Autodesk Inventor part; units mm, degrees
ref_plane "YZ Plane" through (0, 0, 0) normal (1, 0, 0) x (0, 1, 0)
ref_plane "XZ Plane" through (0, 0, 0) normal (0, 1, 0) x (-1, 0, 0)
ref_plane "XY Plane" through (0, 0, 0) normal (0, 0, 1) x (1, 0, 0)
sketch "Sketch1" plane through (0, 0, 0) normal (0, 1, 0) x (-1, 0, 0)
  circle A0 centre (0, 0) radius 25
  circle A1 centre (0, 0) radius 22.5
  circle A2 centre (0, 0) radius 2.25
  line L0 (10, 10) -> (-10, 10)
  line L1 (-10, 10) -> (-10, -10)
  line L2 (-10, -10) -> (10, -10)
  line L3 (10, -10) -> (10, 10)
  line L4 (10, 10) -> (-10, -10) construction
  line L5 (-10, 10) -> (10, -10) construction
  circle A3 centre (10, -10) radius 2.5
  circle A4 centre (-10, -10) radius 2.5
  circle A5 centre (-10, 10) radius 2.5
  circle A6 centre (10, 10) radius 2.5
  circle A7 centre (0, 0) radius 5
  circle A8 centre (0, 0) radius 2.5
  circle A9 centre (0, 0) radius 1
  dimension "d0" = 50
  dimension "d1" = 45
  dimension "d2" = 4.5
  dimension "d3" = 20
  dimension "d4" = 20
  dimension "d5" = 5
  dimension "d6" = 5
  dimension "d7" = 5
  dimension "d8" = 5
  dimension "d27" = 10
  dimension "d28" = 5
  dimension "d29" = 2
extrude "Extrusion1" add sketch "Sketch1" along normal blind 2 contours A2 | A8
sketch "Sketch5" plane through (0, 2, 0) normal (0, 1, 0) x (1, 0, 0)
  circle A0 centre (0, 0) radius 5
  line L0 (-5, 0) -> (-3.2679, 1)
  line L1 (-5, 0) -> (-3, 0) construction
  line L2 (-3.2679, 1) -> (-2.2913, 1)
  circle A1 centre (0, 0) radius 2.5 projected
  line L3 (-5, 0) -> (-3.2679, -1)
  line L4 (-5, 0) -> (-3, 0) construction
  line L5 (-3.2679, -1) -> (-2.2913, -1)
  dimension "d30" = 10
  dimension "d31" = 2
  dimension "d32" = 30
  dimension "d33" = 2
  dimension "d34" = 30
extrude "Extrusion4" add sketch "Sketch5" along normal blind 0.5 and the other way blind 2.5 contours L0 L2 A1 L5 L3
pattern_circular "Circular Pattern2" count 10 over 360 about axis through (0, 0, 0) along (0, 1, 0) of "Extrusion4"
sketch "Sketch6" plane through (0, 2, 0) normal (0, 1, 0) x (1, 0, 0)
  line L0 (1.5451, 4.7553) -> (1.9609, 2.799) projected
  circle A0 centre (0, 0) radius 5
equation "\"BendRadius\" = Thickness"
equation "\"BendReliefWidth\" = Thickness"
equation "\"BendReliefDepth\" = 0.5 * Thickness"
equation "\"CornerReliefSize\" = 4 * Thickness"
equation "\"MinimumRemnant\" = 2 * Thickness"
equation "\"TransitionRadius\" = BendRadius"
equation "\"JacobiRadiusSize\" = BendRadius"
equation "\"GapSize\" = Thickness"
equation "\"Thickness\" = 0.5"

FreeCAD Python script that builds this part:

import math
import FreeCAD as App
import Part
import Sketcher
from FreeCAD import Vector

doc = App.newDocument("Part")
body = doc.addObject("PartDesign::Body", "Body")

# Sketch on XZ plane
sketch1 = doc.addObject("Sketcher::SketchObject", "Sketch")
body.addObject(sketch1)
sketch1.AttachmentSupport = (doc.XZ_Plane, [""])
sketch1.MapMode = "FlatFace"
sketch1.addGeometry([
    Part.Circle(Vector(0, 0, 0), Vector(0, 0, 1), 2.5),
    Part.Circle(Vector(0, 0, 0), Vector(0, 0, 1), 1),
], False)
sketch1.addConstraint([
    Sketcher.Constraint("Coincident", 0, 3, -1, 1),
    Sketcher.Constraint("Coincident", 1, 3, -1, 1),
    Sketcher.Constraint("Diameter", 0, 5.0),
    Sketcher.Constraint("Diameter", 1, 2.0),
])
pad1 = doc.addObject("PartDesign::Pad", "Pad")
body.addObject(pad1)
pad1.Profile = sketch1
pad1.Length = 2
pad1.Reversed = True

# Sketch on XZ plane
sketch2 = doc.addObject("Sketcher::SketchObject", "Sketch001")
body.addObject(sketch2)
sketch2.AttachmentSupport = (doc.XZ_Plane, [""])
sketch2.MapMode = "FlatFace"
sketch2.AttachmentOffset = App.Placement(Vector(0, 0, -2), App.Rotation())
sketch2.addGeometry([
    Part.LineSegment(Vector(-3.3, -1, 0), Vector(-5, 0, 0)),  # 0
    Part.LineSegment(Vector(-5, 0, 0), Vector(-3.3, 1, 0)),  # 1
    Part.LineSegment(Vector(-3.3, 1, 0), Vector(-2.3, 1, 0)),  # 2
    Part.ArcOfCircle(Part.Circle(Vector(0, 0, 0), Vector(0, 0, 1), 2.5), math.radians(156), math.radians(204)),  # 3
    Part.LineSegment(Vector(-2.3, -1, 0), Vector(-3.3, -1, 0)),  # 4
], False)
sketch2.addConstraint([
    Sketcher.Constraint("Coincident", 0, 2, 1, 1),
    Sketcher.Constraint("Coincident", 1, 2, 2, 1),
    Sketcher.Constraint("Coincident", 2, 2, 3, 1),
    Sketcher.Constraint("Coincident", 3, 2, 4, 1),
    Sketcher.Constraint("Coincident", 4, 2, 0, 1),
    Sketcher.Constraint("Horizontal", 2),
    Sketcher.Constraint("Horizontal", 4),
    Sketcher.Constraint("Coincident", 3, 3, -1, 1),
    Sketcher.Constraint("Symmetric", 1, 2, 4, 2, -1),
    Sketcher.Constraint("PointOnObject", 0, 2, -1),
    Sketcher.Constraint("Distance", 0, 2.0),
    Sketcher.Constraint("DistanceY", 3, 2, 2, 2, 2.0),
    Sketcher.Constraint("Radius", 3, 2.5),
    Sketcher.Constraint("DistanceX", 0, 2, -1, 1, 5.0),
])
pad2 = doc.addObject("PartDesign::Pad", "Pad001")
body.addObject(pad2)
pad2.Profile = sketch2
pad2.Type = "TwoLengths"
pad2.Length = 0.5
pad2.Length2 = 2.5
pad2.Reversed = True
doc.recompute()

polarpattern = doc.addObject("PartDesign::PolarPattern", "PolarPattern")
body.addObject(polarpattern)
polarpattern.Originals = [pad2]
polarpattern.Axis = (doc.Y_Axis, [""])
polarpattern.Angle = 360
polarpattern.Occurrences = 10
body.Tip = polarpattern

doc.recompute()
